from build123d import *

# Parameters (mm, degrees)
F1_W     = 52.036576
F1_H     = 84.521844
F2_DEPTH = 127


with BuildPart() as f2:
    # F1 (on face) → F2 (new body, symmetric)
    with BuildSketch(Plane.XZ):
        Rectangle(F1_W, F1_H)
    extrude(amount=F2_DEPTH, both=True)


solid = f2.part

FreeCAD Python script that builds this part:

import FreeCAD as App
import Part
import Sketcher

V = App.Vector
Q = App.Units.Quantity

doc = App.newDocument("Part")
body = doc.addObject("PartDesign::Body", "Body")

# Sketch on XZ plane
sketch1 = body.newObject("Sketcher::SketchObject", "Sketch")
sketch1.AttachmentSupport = (doc.getObject("XZ_Plane"), [""])
sketch1.MapMode = "FlatFace"
sketch1.addGeometry([
    Part.LineSegment(V(-26.018288, 42.260922, 0), V(-26.018288, -42.260922, 0)),
    Part.LineSegment(V(-26.018288, -42.260922, 0), V(26.018288, -42.260922, 0)),
    Part.LineSegment(V(26.018288, -42.260922, 0), V(26.018288, 42.260922, 0)),
    Part.LineSegment(V(26.018288, 42.260922, 0), V(-26.018288, 42.260922, 0)),
], False)
sketch1.addConstraint([
    Sketcher.Constraint("Coincident", 0, 2, 1, 1),
    Sketcher.Constraint("Coincident", 1, 2, 2, 1),
    Sketcher.Constraint("Coincident", 2, 2, 3, 1),
    Sketcher.Constraint("Coincident", 3, 2, 0, 1),
    Sketcher.Constraint("Vertical", 0),
    Sketcher.Constraint("Horizontal", 1),
    Sketcher.Constraint("Vertical", 2),
    Sketcher.Constraint("Horizontal", 3),
    Sketcher.Constraint("Symmetric", 0, 2, 2, 2, -1, 1),
    Sketcher.Constraint("DistanceX", 1, 1, 1, 2, Q("52.036576 mm")),
    Sketcher.Constraint("DistanceY", 0, 2, 0, 1, Q("84.521844 mm")),
])
pad1 = body.newObject("PartDesign::Pad", "Pad")
pad1.Profile = sketch1
pad1.Length = Q("10 in")
pad1.Midplane = True

doc.recompute()
